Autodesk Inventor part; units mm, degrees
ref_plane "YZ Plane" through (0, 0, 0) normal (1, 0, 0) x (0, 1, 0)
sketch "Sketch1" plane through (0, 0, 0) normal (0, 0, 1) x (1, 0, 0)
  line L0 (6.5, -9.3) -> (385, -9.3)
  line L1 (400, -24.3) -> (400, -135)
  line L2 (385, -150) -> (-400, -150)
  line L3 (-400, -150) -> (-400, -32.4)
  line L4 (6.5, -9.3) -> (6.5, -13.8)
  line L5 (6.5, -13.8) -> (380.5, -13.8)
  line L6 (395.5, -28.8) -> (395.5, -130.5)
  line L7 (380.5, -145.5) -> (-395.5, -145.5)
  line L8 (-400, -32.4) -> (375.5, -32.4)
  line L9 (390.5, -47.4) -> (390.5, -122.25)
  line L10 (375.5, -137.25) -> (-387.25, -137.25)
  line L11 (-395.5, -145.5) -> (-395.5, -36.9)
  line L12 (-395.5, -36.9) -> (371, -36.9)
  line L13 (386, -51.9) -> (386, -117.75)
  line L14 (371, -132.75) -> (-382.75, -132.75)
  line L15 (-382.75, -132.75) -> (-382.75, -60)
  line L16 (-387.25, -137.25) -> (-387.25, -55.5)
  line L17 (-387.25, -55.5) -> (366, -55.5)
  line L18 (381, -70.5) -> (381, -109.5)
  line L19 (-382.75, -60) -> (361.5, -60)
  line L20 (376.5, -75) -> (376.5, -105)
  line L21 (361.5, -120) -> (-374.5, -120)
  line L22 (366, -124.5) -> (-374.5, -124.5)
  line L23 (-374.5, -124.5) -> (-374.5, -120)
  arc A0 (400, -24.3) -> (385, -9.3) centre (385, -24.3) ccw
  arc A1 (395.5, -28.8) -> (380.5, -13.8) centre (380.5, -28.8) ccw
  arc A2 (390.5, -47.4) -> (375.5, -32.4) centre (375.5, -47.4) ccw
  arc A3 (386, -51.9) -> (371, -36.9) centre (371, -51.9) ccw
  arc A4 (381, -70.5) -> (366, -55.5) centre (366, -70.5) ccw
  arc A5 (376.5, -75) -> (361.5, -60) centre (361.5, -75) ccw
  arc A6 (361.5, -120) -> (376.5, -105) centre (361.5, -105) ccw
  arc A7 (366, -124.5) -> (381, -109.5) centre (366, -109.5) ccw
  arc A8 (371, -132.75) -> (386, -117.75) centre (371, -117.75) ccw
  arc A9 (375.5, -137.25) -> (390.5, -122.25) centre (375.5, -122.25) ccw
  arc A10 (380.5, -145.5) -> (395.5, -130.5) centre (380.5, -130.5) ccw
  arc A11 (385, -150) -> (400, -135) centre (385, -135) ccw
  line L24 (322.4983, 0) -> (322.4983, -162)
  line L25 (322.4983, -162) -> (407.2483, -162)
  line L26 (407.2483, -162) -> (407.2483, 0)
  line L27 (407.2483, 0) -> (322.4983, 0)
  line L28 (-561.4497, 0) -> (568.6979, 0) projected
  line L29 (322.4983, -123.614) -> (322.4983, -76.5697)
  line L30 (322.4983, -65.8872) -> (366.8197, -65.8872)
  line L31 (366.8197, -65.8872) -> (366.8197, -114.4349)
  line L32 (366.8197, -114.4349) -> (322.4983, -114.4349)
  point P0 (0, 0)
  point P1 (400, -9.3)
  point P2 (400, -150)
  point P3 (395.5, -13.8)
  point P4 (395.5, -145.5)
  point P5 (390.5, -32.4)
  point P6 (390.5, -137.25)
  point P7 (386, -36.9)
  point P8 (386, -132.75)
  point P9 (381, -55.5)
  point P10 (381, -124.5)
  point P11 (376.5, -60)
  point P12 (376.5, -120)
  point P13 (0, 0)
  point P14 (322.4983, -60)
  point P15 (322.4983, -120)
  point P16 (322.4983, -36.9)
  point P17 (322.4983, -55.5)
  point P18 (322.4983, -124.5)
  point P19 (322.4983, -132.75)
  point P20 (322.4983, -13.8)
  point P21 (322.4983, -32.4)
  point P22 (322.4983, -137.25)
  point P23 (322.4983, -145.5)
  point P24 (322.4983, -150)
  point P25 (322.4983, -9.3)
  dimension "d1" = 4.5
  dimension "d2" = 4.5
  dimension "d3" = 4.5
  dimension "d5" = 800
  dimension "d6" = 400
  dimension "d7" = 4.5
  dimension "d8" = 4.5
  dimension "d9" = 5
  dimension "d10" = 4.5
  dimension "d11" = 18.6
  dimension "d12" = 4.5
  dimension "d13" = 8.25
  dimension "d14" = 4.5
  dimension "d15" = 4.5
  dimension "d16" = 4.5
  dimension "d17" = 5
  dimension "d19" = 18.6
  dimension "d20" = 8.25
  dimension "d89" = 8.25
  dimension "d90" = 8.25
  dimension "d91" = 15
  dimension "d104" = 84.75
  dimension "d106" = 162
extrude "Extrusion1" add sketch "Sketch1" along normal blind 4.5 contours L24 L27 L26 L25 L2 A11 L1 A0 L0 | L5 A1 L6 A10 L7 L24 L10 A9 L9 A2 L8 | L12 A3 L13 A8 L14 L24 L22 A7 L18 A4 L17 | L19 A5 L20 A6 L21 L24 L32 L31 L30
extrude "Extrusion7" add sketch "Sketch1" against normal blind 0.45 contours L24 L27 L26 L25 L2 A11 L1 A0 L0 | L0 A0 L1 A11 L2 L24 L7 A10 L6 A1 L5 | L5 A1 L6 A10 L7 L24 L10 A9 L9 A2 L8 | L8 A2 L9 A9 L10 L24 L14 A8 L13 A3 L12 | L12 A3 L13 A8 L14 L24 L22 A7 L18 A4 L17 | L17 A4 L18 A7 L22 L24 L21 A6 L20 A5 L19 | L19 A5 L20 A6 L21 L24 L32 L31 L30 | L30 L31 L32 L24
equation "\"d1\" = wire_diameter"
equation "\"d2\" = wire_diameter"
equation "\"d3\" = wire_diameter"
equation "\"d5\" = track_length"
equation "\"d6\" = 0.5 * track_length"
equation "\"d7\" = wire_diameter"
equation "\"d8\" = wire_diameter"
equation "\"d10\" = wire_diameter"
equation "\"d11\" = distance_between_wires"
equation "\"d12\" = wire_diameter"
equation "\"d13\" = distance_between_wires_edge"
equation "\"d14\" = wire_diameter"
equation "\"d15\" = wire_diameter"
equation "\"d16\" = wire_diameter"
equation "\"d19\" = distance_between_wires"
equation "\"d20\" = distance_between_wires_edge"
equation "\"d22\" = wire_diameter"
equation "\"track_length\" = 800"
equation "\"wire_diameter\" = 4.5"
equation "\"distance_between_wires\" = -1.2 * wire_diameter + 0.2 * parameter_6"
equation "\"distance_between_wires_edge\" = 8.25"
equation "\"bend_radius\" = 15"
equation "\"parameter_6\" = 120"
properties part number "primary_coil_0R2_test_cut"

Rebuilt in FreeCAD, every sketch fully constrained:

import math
import FreeCAD as App
import Part
import Sketcher
from FreeCAD import Vector

doc = App.newDocument("Part")
params = doc.addObject("Spreadsheet::Sheet", "Params")
for row, (alias, value) in enumerate([
    ("sketch1_radius", "15 mm"),
    ("sketch1_height", "162 mm"),
    ("sketch1_height2", "18.6 mm"),
    ("sketch1_width", "84.75 mm"),
    ("sketch1_height3", "8.25 mm"),
    ("pad1_length", "4.5 mm"),
    ("sketch2_height", "162 mm"),
    ("sketch2_width", "84.75 mm"),
    ("pad2_length", "0.45 mm"),
], start=1):
    params.set(f"A{row}", alias)
    params.set(f"B{row}", "=" + value)
    params.setAlias(f"B{row}", alias)

body = doc.addObject("PartDesign::Body", "Body")
body.AllowCompound = True

sketch1 = body.newObject("Sketcher::SketchObject", "Sketch")
sketch1.AttachmentSupport = (doc.getObject("XY_Plane"), [""])
sketch1.MapMode = "FlatFace"
sketch1.addGeometry([
    Part.LineSegment(Vector(322.4983, 0, 0), Vector(322.4983, -9.3, 0)),
    Part.LineSegment(Vector(322.4983, -9.3, 0), Vector(385, -9.3, 0)),
    Part.ArcOfCircle(Part.Circle(Vector(385, -24.3, 0), Vector(0, 0, 1), 15), math.radians(0), math.radians(90)),
    Part.LineSegment(Vector(400, -24.3, 0), Vector(400, -135, 0)),
    Part.ArcOfCircle(Part.Circle(Vector(385, -135, 0), Vector(0, 0, 1), 15), math.radians(-90), math.radians(0)),
    Part.LineSegment(Vector(385, -150, 0), Vector(322.4983, -150, 0)),
    Part.LineSegment(Vector(322.4983, -150, 0), Vector(322.4983, -162, 0)),
    Part.LineSegment(Vector(322.4983, -162, 0), Vector(407.2483, -162, 0)),
    Part.LineSegment(Vector(407.2483, -162, 0), Vector(407.2483, 0, 0)),
    Part.LineSegment(Vector(407.2483, 0, 0), Vector(322.4983, 0, 0)),
    Part.LineSegment(Vector(380.5, -13.8, 0), Vector(322.4983, -13.8, 0)),
    Part.LineSegment(Vector(322.4983, -13.8, 0), Vector(322.4983, -32.4, 0)),
    Part.LineSegment(Vector(322.4983, -32.4, 0), Vector(375.5, -32.4, 0)),
    Part.ArcOfCircle(Part.Circle(Vector(375.5, -47.4, 0), Vector(0, 0, 1), 15), math.radians(0), math.radians(90)),
    Part.LineSegment(Vector(390.5, -47.4, 0), Vector(390.5, -122.25, 0)),
    Part.ArcOfCircle(Part.Circle(Vector(375.5, -122.25, 0), Vector(0, 0, 1), 15), math.radians(-90), math.radians(0)),
    Part.LineSegment(Vector(375.5, -137.25, 0), Vector(322.4983, -137.25, 0)),
    Part.LineSegment(Vector(322.4983, -137.25, 0), Vector(322.4983, -145.5, 0)),
    Part.LineSegment(Vector(322.4983, -145.5, 0), Vector(380.5, -145.5, 0)),
    Part.ArcOfCircle(Part.Circle(Vector(380.5, -130.5, 0), Vector(0, 0, 1), 15), math.radians(-90), math.radians(0)),
    Part.LineSegment(Vector(395.5, -130.5, 0), Vector(395.5, -28.8, 0)),
    Part.ArcOfCircle(Part.Circle(Vector(380.5, -28.8, 0), Vector(0, 0, 1), 15), math.radians(0), math.radians(90)),
    Part.LineSegment(Vector(371, -36.9, 0), Vector(322.4983, -36.9, 0)),
    Part.LineSegment(Vector(322.4983, -36.9, 0), Vector(322.4983, -55.5, 0)),
    Part.LineSegment(Vector(322.4983, -55.5, 0), Vector(366, -55.5, 0)),
    Part.ArcOfCircle(Part.Circle(Vector(366, -70.5, 0), Vector(0, 0, 1), 15), math.radians(0), math.radians(90)),
    Part.LineSegment(Vector(381, -70.5, 0), Vector(381, -109.5, 0)),
    Part.ArcOfCircle(Part.Circle(Vector(366, -109.5, 0), Vector(0, 0, 1), 15), math.radians(-90), math.radians(0)),
    Part.LineSegment(Vector(366, -124.5, 0), Vector(322.4983, -124.5, 0)),
    Part.LineSegment(Vector(322.4983, -124.5, 0), Vector(322.4983, -132.75, 0)),
    Part.LineSegment(Vector(322.4983, -132.75, 0), Vector(371, -132.75, 0)),
    Part.ArcOfCircle(Part.Circle(Vector(371, -117.75, 0), Vector(0, 0, 1), 15), math.radians(-90), math.radians(0)),
    Part.LineSegment(Vector(386, -117.75, 0), Vector(386, -51.9, 0)),
    Part.ArcOfCircle(Part.Circle(Vector(371, -51.9, 0), Vector(0, 0, 1), 15), math.radians(0), math.radians(90)),
    Part.LineSegment(Vector(361.5, -60, 0), Vector(322.4983, -60, 0)),
    Part.LineSegment(Vector(322.4983, -60, 0), Vector(322.4983, -65.8872, 0)),
    Part.LineSegment(Vector(322.4983, -65.8872, 0), Vector(366.8197, -65.8872, 0)),
    Part.LineSegment(Vector(366.8197, -65.8872, 0), Vector(366.8197, -114.4349, 0)),
    Part.LineSegment(Vector(366.8197, -114.4349, 0), Vector(322.4983, -114.4349, 0)),
    Part.LineSegment(Vector(322.4983, -114.4349, 0), Vector(322.4983, -120, 0)),
    Part.LineSegment(Vector(322.4983, -120, 0), Vector(361.5, -120, 0)),
    Part.ArcOfCircle(Part.Circle(Vector(361.5, -105, 0), Vector(0, 0, 1), 15), math.radians(-90), math.radians(0)),
    Part.LineSegment(Vector(376.5, -105, 0), Vector(376.5, -75, 0)),
    Part.ArcOfCircle(Part.Circle(Vector(361.5, -75, 0), Vector(0, 0, 1), 15), math.radians(0), math.radians(90)),
], False)
sketch1.addConstraint([
    Sketcher.Constraint("Coincident", 0, 2, 1, 1),
    Sketcher.Constraint("Tangent", 1, 2, 2, 2),
    Sketcher.Constraint("Tangent", 2, 1, 3, 1),
    Sketcher.Constraint("Tangent", 3, 2, 4, 2),
    Sketcher.Constraint("Tangent", 4, 1, 5, 1),
    Sketcher.Constraint("Coincident", 5, 2, 6, 1),
    Sketcher.Constraint("Coincident", 6, 2, 7, 1),
    Sketcher.Constraint("Coincident", 7, 2, 8, 1),
    Sketcher.Constraint("Coincident", 8, 2, 9, 1),
    Sketcher.Constraint("Coincident", 9, 2, 0, 1),
    Sketcher.Constraint("Coincident", 10, 2, 11, 1),
    Sketcher.Constraint("Coincident", 11, 2, 12, 1),
    Sketcher.Constraint("Tangent", 12, 2, 13, 2),
    Sketcher.Constraint("Tangent", 13, 1, 14, 1),
    Sketcher.Constraint("Tangent", 14, 2, 15, 2),
    Sketcher.Constraint("Tangent", 15, 1, 16, 1),
    Sketcher.Constraint("Coincident", 16, 2, 17, 1),
    Sketcher.Constraint("Coincident", 17, 2, 18, 1),
    Sketcher.Constraint("Tangent", 18, 2, 19, 1),
    Sketcher.Constraint("Tangent", 19, 2, 20, 1),
    Sketcher.Constraint("Tangent", 20, 2, 21, 1),
    Sketcher.Constraint("Tangent", 21, 2, 10, 1),
    Sketcher.Constraint("Coincident", 22, 2, 23, 1),
    Sketcher.Constraint("Coincident", 23, 2, 24, 1),
    Sketcher.Constraint("Tangent", 24, 2, 25, 2),
    Sketcher.Constraint("Tangent", 25, 1, 26, 1),
    Sketcher.Constraint("Tangent", 26, 2, 27, 2),
    Sketcher.Constraint("Tangent", 27, 1, 28, 1),
    Sketcher.Constraint("Coincident", 28, 2, 29, 1),
    Sketcher.Constraint("Coincident", 29, 2, 30, 1),
    Sketcher.Constraint("Tangent", 30, 2, 31, 1),
    Sketcher.Constraint("Tangent", 31, 2, 32, 1),
    Sketcher.Constraint("Tangent", 32, 2, 33, 1),
    Sketcher.Constraint("Tangent", 33, 2, 22, 1),
    Sketcher.Constraint("Coincident", 34, 2, 35, 1),
    Sketcher.Constraint("Coincident", 35, 2, 36, 1),
    Sketcher.Constraint("Coincident", 36, 2, 37, 1),
    Sketcher.Constraint("Coincident", 37, 2, 38, 1),
    Sketcher.Constraint("Coincident", 38, 2, 39, 1),
    Sketcher.Constraint("Coincident", 39, 2, 40, 1),
    Sketcher.Constraint("Tangent", 40, 2, 41, 1),
    Sketcher.Constraint("Tangent", 41, 2, 42, 1),
    Sketcher.Constraint("Tangent", 42, 2, 43, 1),
    Sketcher.Constraint("Tangent", 43, 2, 34, 1),
    Sketcher.Constraint("Vertical", 0),
    Sketcher.Constraint("Horizontal", 1),
    Sketcher.Constraint("Vertical", 3),
    Sketcher.Constraint("Horizontal", 5),
    Sketcher.Constraint("Vertical", 6),
    Sketcher.Constraint("Horizontal", 7),
    Sketcher.Constraint("Vertical", 8),
    Sketcher.Constraint("Horizontal", 9),
    Sketcher.Constraint("Horizontal", 10),
    Sketcher.Constraint("Vertical", 11),
    Sketcher.Constraint("Horizontal", 12),
    Sketcher.Constraint("Vertical", 14),
    Sketcher.Constraint("Horizontal", 16),
    Sketcher.Constraint("Vertical", 17),
    Sketcher.Constraint("Horizontal", 18),
    Sketcher.Constraint("Vertical", 20),
    Sketcher.Constraint("Horizontal", 22),
    Sketcher.Constraint("Vertical", 23),
    Sketcher.Constraint("Horizontal", 24),
    Sketcher.Constraint("Vertical", 26),
    Sketcher.Constraint("Horizontal", 28),
    Sketcher.Constraint("Vertical", 29),
    Sketcher.Constraint("Horizontal", 30),
    Sketcher.Constraint("Vertical", 32),
    Sketcher.Constraint("Horizontal", 34),
    Sketcher.Constraint("Vertical", 35),
    Sketcher.Constraint("Horizontal", 36),
    Sketcher.Constraint("Vertical", 37),
    Sketcher.Constraint("Horizontal", 38),
    Sketcher.Constraint("Vertical", 39),
    Sketcher.Constraint("Horizontal", 40),
    Sketcher.Constraint("Vertical", 42),
    Sketcher.Constraint("Equal", 2, 4),
    Sketcher.Constraint("Equal", 4, 13),
    Sketcher.Constraint("Equal", 13, 15),
    Sketcher.Constraint("Equal", 15, 19),
    Sketcher.Constraint("Equal", 19, 21),
    Sketcher.Constraint("Equal", 21, 25),
    Sketcher.Constraint("Equal", 25, 27),
    Sketcher.Constraint("Equal", 27, 31),
    Sketcher.Constraint("Equal", 31, 33),
    Sketcher.Constraint("Equal", 33, 41),
    Sketcher.Constraint("Equal", 41, 43),
    Sketcher.Constraint("PointOnObject", 8, 2, -1),
    Sketcher.Constraint("Vertical", 0, 2, 5, 2),
    Sketcher.Constraint("Vertical", 9, 2, 10, 2),
    Sketcher.Constraint("Vertical", 11, 2, 16, 2),
    Sketcher.Constraint("Vertical", 17, 2, 22, 2),
    Sketcher.Constraint("Vertical", 23, 2, 28, 2),
    Sketcher.Constraint("Vertical", 29, 2, 34, 2),
    Sketcher.Constraint("Vertical", 35, 2, 38, 2),
    Sketcher.Constraint("Equal", 11, 23),
    Sketcher.Constraint("Equal", 17, 29),
    Sketcher.Constraint("Radius", 2, 15.0),
    Sketcher.Constraint("DistanceY", 8, 1, 8, 2, 162.0),
    Sketcher.Constraint("DistanceY", 11, 2, 11, 1, 18.6),
    Sketcher.Constraint("DistanceX", -1, 1, 2, 1, 400.0),
    Sketcher.Constraint("DistanceX", 15, 3, 19, 3, 5.0),
    Sketcher.Constraint("DistanceX", 27, 3, 31, 3, 5.0),
    Sketcher.Constraint("DistanceX", 7, 1, 7, 2, 84.75),
    Sketcher.Constraint("DistanceY", 17, 2, 17, 1, 8.25),
    Sketcher.Constraint("DistanceX", 19, 3, 4, 3, 4.5),
    Sketcher.Constraint("DistanceY", 4, 3, 19, 3, 4.5),
    Sketcher.Constraint("DistanceY", 21, 3, 2, 3, 4.5),
    Sketcher.Constraint("DistanceX", 31, 3, 15, 3, 4.5),
    Sketcher.Constraint("DistanceY", 15, 3, 31, 3, 4.5),
    Sketcher.Constraint("DistanceY", 33, 3, 13, 3, 4.5),
    Sketcher.Constraint("DistanceX", 41, 3, 27, 3, 4.5),
    Sketcher.Constraint("DistanceY", 27, 3, 41, 3, 4.5),
    Sketcher.Constraint("DistanceY", 43, 3, 25, 3, 4.5),
    Sketcher.Constraint("DistanceY", 6, 2, 6, 1, 12.0),
    Sketcher.Constraint("DistanceY", 26, 2, 26, 1, 39.0),
    Sketcher.Constraint("DistanceY", 39, 2, 39, 1, 5.565),
    Sketcher.Constraint("DistanceX", 1, 1, 1, 2, 62.5017),
    Sketcher.Constraint("DistanceX", 36, 1, 36, 2, 44.3214),
    Sketcher.Constraint("DistanceY", 35, 2, 35, 1, 5.8872),
])
sketch1.setExpression("Constraints[97]", "Params.sketch1_radius")
sketch1.setExpression("Constraints[98]", "Params.sketch1_height")
sketch1.setExpression("Constraints[99]", "Params.sketch1_height2")
sketch1.setExpression("Constraints[103]", "Params.sketch1_width")
sketch1.setExpression("Constraints[104]", "Params.sketch1_height3")
pad1 = body.newObject("PartDesign::Pad", "Pad")
pad1.Profile = sketch1
pad1.setExpression("Length", "Params.pad1_length")

sketch2 = body.newObject("Sketcher::SketchObject", "Sketch001")
sketch2.AttachmentSupport = (doc.getObject("XY_Plane"), [""])
sketch2.MapMode = "FlatFace"
sketch2.addGeometry([
    Part.LineSegment(Vector(322.4983, 0, 0), Vector(322.4983, -162, 0)),
    Part.LineSegment(Vector(322.4983, -162, 0), Vector(407.2483, -162, 0)),
    Part.LineSegment(Vector(407.2483, -162, 0), Vector(407.2483, 0, 0)),
    Part.LineSegment(Vector(407.2483, 0, 0), Vector(322.4983, 0, 0)),
], False)
sketch2.addConstraint([
    Sketcher.Constraint("Coincident", 0, 2, 1, 1),
    Sketcher.Constraint("Coincident", 1, 2, 2, 1),
    Sketcher.Constraint("Coincident", 2, 2, 3, 1),
    Sketcher.Constraint("Coincident", 3, 2, 0, 1),
    Sketcher.Constraint("Vertical", 0),
    Sketcher.Constraint("Horizontal", 1),
    Sketcher.Constraint("Vertical", 2),
    Sketcher.Constraint("Horizontal", 3),
    Sketcher.Constraint("PointOnObject", 2, 2, -1),
    Sketcher.Constraint("DistanceY", 0, 2, 0, 1, 162.0),
    Sketcher.Constraint("DistanceX", 1, 1, 1, 2, 84.75),
    Sketcher.Constraint("DistanceX", -1, 1, 0, 2, 322.4983),
])
sketch2.setExpression("Constraints[9]", "Params.sketch2_height")
sketch2.setExpression("Constraints[10]", "Params.sketch2_width")
pad2 = body.newObject("PartDesign::Pad", "Pad001")
pad2.Profile = sketch2
pad2.setExpression("Length", "Params.pad2_length")
pad2.Reversed = True

doc.recompute()
